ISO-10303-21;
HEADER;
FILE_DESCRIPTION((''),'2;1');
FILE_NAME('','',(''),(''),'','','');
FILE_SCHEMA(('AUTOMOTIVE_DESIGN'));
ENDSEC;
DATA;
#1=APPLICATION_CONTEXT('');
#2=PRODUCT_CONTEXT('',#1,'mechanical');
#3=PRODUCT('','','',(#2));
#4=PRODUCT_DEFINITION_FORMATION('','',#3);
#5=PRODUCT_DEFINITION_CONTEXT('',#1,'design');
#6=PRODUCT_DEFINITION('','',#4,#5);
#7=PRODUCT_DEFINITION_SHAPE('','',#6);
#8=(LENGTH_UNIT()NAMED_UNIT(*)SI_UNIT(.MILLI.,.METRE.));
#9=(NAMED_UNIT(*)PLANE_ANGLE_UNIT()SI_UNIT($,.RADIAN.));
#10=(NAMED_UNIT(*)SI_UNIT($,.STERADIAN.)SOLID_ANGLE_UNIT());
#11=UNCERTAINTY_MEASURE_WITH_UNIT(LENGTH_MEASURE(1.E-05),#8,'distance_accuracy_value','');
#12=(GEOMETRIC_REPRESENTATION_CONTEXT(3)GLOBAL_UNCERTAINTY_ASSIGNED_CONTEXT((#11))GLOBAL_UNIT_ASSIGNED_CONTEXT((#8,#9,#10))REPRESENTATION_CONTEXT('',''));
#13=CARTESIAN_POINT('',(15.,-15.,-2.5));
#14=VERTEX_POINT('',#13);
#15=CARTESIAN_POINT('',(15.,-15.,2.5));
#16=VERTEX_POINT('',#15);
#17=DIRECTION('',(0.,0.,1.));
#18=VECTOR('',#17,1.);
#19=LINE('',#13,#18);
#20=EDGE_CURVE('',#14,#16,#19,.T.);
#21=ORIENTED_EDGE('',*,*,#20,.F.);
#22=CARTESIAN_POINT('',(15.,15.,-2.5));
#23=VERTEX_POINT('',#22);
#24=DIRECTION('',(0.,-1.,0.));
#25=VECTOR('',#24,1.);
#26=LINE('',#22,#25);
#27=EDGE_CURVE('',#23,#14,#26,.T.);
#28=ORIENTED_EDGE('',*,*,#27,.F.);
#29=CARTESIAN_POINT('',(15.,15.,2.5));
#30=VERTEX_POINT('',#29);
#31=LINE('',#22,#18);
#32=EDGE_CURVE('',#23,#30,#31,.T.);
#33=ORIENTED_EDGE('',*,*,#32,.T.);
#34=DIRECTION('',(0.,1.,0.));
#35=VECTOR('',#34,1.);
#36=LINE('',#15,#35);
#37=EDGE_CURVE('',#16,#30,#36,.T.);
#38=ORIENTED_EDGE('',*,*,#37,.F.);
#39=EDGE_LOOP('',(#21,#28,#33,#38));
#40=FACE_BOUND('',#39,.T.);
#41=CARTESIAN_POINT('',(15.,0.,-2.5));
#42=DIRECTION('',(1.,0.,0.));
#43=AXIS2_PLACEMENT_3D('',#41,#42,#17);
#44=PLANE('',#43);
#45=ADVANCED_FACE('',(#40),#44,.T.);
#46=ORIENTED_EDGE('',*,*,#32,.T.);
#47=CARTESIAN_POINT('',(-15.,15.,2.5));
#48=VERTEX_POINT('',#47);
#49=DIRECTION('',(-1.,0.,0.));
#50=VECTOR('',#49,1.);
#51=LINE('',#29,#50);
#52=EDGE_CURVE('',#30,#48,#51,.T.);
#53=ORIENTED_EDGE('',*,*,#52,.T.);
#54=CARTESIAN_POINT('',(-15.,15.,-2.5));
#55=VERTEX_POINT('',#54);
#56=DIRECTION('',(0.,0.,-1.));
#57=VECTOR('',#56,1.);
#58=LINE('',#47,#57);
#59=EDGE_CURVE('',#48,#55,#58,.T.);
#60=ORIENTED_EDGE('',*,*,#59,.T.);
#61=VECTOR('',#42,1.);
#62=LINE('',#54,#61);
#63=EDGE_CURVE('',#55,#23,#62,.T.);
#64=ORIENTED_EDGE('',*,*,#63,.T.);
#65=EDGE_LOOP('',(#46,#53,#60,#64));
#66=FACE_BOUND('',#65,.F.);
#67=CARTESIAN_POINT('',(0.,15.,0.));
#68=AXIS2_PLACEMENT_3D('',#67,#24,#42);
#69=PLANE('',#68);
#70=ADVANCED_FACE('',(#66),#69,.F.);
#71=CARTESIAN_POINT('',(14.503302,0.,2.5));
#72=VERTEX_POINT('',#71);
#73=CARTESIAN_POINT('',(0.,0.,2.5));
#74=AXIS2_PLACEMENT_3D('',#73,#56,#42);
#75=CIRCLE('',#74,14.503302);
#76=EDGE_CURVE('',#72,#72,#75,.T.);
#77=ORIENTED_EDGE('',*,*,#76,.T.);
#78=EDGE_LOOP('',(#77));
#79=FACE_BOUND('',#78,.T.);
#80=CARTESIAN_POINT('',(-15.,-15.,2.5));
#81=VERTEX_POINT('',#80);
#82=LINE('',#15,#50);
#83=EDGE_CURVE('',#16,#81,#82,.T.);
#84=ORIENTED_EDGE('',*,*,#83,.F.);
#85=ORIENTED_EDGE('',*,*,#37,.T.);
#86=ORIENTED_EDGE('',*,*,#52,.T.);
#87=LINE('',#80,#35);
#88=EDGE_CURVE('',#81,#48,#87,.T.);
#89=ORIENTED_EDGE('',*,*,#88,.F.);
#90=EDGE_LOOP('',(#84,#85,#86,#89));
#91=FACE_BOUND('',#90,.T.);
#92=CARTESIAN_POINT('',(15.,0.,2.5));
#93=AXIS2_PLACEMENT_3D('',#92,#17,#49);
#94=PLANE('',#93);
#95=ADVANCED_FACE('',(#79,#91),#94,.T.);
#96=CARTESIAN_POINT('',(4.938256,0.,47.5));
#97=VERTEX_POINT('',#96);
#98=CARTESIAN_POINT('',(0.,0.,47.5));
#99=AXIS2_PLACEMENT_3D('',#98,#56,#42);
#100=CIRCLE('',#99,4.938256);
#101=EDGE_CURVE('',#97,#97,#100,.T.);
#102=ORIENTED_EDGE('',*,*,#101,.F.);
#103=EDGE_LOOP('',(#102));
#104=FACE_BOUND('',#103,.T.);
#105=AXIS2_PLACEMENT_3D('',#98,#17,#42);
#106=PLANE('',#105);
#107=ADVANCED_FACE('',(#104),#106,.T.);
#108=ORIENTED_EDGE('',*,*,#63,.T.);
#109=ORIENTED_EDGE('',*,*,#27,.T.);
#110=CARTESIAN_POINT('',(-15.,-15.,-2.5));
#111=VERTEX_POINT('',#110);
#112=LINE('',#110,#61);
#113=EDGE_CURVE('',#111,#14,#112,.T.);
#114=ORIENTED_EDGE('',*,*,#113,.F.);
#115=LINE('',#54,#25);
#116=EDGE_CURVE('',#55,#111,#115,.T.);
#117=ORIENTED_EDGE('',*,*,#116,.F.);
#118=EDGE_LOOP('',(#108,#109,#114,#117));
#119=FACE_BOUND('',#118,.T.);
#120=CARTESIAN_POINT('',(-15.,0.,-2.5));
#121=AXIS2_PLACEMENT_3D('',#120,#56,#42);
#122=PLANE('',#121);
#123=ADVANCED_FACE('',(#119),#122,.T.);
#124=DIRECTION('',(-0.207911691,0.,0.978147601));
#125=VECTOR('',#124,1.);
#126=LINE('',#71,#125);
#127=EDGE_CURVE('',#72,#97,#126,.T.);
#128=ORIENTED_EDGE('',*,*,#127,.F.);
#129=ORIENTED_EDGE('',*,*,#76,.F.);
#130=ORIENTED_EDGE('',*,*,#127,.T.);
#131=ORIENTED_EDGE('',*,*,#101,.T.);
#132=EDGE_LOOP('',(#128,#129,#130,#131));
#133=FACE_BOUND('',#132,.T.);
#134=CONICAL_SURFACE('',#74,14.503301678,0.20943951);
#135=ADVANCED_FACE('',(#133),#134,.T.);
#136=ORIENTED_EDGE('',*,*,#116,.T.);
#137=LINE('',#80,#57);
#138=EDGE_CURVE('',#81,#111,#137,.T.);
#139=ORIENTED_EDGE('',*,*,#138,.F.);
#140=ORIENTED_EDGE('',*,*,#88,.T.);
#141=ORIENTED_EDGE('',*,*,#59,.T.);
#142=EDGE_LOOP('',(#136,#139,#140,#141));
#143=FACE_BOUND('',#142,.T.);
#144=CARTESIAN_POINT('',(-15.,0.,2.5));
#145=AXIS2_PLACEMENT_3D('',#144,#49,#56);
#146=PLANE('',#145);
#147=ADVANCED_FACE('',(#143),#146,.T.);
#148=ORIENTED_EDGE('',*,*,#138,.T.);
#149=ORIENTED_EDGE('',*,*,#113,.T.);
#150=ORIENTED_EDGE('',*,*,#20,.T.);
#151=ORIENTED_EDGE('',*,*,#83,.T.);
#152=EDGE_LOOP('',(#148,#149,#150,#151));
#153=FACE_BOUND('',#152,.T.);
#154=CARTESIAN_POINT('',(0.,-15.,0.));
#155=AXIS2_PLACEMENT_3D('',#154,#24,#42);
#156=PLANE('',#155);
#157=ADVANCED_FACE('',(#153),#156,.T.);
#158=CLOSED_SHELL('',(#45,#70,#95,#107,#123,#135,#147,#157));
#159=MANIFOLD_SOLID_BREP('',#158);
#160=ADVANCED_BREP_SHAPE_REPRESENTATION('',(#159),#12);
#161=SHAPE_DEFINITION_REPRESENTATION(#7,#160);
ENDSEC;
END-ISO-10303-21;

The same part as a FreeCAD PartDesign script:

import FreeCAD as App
import Part
import Sketcher
from FreeCAD import Vector
Q = App.Units.Quantity

doc = App.newDocument("Part")
body = doc.addObject("PartDesign::Body", "Body")

# Sketch on XZ plane
sketch1 = body.newObject("Sketcher::SketchObject", "Sketch")
sketch1.AttachmentSupport = (doc.getObject("XZ_Plane"), [""])
sketch1.MapMode = "FlatFace"
sketch1.addGeometry([
    Part.LineSegment(Vector(-15, 2, 0), Vector(-15, -2, 0)),
    Part.LineSegment(Vector(-15, -2, 0), Vector(15, -2, 0)),
    Part.LineSegment(Vector(15, -2, 0), Vector(15, 2, 0)),
    Part.LineSegment(Vector(15, 2, 0), Vector(-15, 2, 0)),
], False)
sketch1.addConstraint([
    Sketcher.Constraint("Coincident", 0, 2, 1, 1),
    Sketcher.Constraint("Coincident", 1, 2, 2, 1),
    Sketcher.Constraint("Coincident", 2, 2, 3, 1),
    Sketcher.Constraint("Coincident", 3, 2, 0, 1),
    Sketcher.Constraint("Vertical", 0),
    Sketcher.Constraint("Horizontal", 1),
    Sketcher.Constraint("Vertical", 2),
    Sketcher.Constraint("Horizontal", 3),
    Sketcher.Constraint("Symmetric", 0, 2, 2, 2, -1, 1),
    Sketcher.Constraint("DistanceX", 1, 1, 1, 2, Q("30 mm")),
    Sketcher.Constraint("DistanceY", 0, 2, 0, 1, Q("5 mm")),
])
pad1 = body.newObject("PartDesign::Pad", "Pad")
pad1.Profile = sketch1
pad1.Length = 30
pad1.Midplane = True

# Sketch on XY plane
sketch2 = body.newObject("Sketcher::SketchObject", "Sketch001")
sketch2.AttachmentSupport = (doc.getObject("XY_Plane"), [""])
sketch2.MapMode = "FlatFace"
sketch2.AttachmentOffset = App.Placement(Vector(0, 0, 2.5), App.Rotation())
sketch2.addGeometry(Part.Circle(Vector(0, 0, 0), Vector(0, 0, 1), 15), False)
sketch2.addConstraint([
    Sketcher.Constraint("Coincident", 0, 3, -1, 1),
    Sketcher.Constraint("Diameter", 0, Q("29.006603 mm")),
])
pad2 = body.newObject("PartDesign::Pad", "Pad001")
pad2.Profile = sketch2
pad2.Length = 45
pad2.TaperAngle = -12

doc.recompute()
